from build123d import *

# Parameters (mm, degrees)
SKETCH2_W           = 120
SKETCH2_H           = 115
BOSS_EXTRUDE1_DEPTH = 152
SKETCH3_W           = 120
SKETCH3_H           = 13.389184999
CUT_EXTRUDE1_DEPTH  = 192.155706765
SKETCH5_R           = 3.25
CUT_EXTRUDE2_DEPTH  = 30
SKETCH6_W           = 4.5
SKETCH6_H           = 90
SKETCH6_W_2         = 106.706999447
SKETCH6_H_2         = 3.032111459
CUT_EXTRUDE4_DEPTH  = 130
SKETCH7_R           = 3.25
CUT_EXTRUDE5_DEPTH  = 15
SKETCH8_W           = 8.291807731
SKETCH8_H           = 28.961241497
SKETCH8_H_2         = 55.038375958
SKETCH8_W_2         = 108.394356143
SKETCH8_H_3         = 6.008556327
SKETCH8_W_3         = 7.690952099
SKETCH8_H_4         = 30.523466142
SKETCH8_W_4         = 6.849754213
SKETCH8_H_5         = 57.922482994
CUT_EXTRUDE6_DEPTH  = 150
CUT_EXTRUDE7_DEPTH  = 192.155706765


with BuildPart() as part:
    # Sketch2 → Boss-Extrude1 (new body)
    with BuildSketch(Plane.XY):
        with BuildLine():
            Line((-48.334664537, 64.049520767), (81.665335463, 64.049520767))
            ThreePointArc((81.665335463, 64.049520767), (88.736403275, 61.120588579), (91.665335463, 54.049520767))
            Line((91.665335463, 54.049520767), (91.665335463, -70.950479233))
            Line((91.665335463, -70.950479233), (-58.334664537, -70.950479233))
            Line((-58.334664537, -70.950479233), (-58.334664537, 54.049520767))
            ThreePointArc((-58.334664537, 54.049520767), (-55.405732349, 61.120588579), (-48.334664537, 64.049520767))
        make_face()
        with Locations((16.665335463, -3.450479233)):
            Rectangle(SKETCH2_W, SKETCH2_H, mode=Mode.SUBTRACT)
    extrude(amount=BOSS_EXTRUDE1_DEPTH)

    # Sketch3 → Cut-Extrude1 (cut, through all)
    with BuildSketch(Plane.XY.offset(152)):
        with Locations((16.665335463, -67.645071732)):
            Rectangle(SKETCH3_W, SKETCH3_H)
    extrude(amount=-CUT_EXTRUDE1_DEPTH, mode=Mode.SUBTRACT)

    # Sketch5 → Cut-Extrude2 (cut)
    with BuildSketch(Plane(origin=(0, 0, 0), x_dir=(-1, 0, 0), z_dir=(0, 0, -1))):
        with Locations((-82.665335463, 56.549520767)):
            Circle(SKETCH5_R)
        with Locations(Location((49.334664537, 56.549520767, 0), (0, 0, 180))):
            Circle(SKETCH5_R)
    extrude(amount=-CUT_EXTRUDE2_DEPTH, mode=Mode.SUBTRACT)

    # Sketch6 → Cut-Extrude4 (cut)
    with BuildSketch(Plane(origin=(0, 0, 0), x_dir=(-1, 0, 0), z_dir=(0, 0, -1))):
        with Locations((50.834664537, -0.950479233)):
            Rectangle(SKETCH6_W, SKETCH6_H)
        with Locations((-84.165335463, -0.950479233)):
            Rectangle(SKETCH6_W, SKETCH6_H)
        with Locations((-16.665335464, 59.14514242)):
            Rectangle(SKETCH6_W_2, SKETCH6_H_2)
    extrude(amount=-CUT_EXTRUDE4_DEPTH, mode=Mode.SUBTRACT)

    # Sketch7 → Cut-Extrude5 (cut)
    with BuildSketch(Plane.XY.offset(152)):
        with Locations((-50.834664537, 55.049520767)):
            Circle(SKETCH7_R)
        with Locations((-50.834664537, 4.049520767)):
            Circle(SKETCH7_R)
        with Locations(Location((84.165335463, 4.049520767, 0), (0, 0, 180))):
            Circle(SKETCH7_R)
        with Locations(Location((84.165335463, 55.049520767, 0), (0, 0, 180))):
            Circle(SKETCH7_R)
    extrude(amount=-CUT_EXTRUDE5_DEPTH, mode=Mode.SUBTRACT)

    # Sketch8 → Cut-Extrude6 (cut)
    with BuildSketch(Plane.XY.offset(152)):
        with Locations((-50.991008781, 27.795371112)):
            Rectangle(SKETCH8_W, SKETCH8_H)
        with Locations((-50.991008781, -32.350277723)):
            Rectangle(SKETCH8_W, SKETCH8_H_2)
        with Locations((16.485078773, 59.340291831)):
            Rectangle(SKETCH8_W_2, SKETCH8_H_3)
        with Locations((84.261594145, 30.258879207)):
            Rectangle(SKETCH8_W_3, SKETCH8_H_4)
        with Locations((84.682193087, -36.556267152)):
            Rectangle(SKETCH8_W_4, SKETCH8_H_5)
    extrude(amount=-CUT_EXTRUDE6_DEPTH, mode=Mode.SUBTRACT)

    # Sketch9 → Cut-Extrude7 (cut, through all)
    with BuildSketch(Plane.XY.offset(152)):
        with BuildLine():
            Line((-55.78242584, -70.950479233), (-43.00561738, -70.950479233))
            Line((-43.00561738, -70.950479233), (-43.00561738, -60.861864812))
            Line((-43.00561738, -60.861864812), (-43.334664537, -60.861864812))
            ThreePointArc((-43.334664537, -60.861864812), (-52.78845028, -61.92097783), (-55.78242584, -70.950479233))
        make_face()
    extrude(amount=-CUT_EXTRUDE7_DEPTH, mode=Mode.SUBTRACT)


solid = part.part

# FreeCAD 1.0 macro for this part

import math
import FreeCAD as App
import Part
import Sketcher
from FreeCAD import Vector

doc = App.newDocument("Part")
params = doc.addObject("Spreadsheet::Sheet", "Params")
for row, (alias, value) in enumerate([
    ("sketch1_radius", "10 mm"),
    ("sketch1_width", "130 mm"),
    ("sketch1_width2", "120 mm"),
    ("sketch1_height", "125 mm"),
    ("sketch1_height2", "115 mm"),
    ("pad1_length", "152 mm"),
    ("sketch2_width", "120 mm"),
    ("sketch3_diameter", "6.5 mm"),
    ("pocket2_length", "30 mm"),
    ("sketch4_height", "90 mm"),
    ("sketch4_width", "4.5 mm"),
    ("pocket3_length", "130 mm"),
    ("sketch5_diameter", "6.5 mm"),
    ("pocket4_length", "15 mm"),
    ("pocket5_length", "150 mm"),
], start=1):
    params.set(f"A{row}", alias)
    params.set(f"B{row}", "=" + value)
    params.setAlias(f"B{row}", alias)

body = doc.addObject("PartDesign::Body", "Body")

# Sketch on XY plane
sketch1 = body.newObject("Sketcher::SketchObject", "Sketch")
sketch1.AttachmentSupport = (doc.getObject("XY_Plane"), [""])
sketch1.MapMode = "FlatFace"
sketch1.addGeometry(Part.LineSegment(Vector(82, 64, 0), Vector(-48, 64, 0)), False)
sketch1.addGeometry(Part.ArcOfCircle(Part.Circle(Vector(-48, 54, 0), Vector(0, 0, 1), 10), math.radians(90), math.radians(180)), False)
sketch1.addGeometry(Part.LineSegment(Vector(-58, 54, 0), Vector(-58, -71, 0)), False)
sketch1.addGeometry(Part.LineSegment(Vector(-58, -71, 0), Vector(92, -71, 0)), False)
sketch1.addGeometry(Part.LineSegment(Vector(92, -71, 0), Vector(92, 54, 0)), False)
sketch1.addGeometry(Part.ArcOfCircle(Part.Circle(Vector(82, 54, 0), Vector(0, 0, 1), 10), math.radians(0), math.radians(90)), False)
sketch1.addGeometry(Part.LineSegment(Vector(-43, -61, 0), Vector(-43, 54, 0)), False)
sketch1.addGeometry(Part.LineSegment(Vector(-43, 54, 0), Vector(77, 54, 0)), False)
sketch1.addGeometry(Part.LineSegment(Vector(77, 54, 0), Vector(77, -61, 0)), False)
sketch1.addGeometry(Part.LineSegment(Vector(77, -61, 0), Vector(-43, -61, 0)), False)
sketch1.addConstraint(Sketcher.Constraint("Tangent", 0, 2, 1, 1))
sketch1.addConstraint(Sketcher.Constraint("Tangent", 1, 2, 2, 1))
sketch1.addConstraint(Sketcher.Constraint("Coincident", 2, 2, 3, 1))
sketch1.addConstraint(Sketcher.Constraint("Coincident", 3, 2, 4, 1))
sketch1.addConstraint(Sketcher.Constraint("Tangent", 4, 2, 5, 1))
sketch1.addConstraint(Sketcher.Constraint("Tangent", 5, 2, 0, 1))
sketch1.addConstraint(Sketcher.Constraint("Coincident", 6, 2, 7, 1))
sketch1.addConstraint(Sketcher.Constraint("Coincident", 7, 2, 8, 1))
sketch1.addConstraint(Sketcher.Constraint("Coincident", 8, 2, 9, 1))
sketch1.addConstraint(Sketcher.Constraint("Coincident", 9, 2, 6, 1))
sketch1.addConstraint(Sketcher.Constraint("Horizontal", 0))
sketch1.addConstraint(Sketcher.Constraint("Vertical", 2))
sketch1.addConstraint(Sketcher.Constraint("Horizontal", 3))
sketch1.addConstraint(Sketcher.Constraint("Vertical", 4))
sketch1.addConstraint(Sketcher.Constraint("Vertical", 6))
sketch1.addConstraint(Sketcher.Constraint("Horizontal", 7))
sketch1.addConstraint(Sketcher.Constraint("Vertical", 8))
sketch1.addConstraint(Sketcher.Constraint("Horizontal", 9))
sketch1.addConstraint(Sketcher.Constraint("Equal", 1, 5))
sketch1.addConstraint(Sketcher.Constraint("Horizontal", 4, 2, 6, 2))
sketch1.addConstraint(Sketcher.Constraint("Radius", 1, 10.0))
sketch1.addConstraint(Sketcher.Constraint("DistanceX", 0, 2, 0, 1, 130.0))
sketch1.addConstraint(Sketcher.Constraint("DistanceX", 7, 1, 7, 2, 120.0))
sketch1.addConstraint(Sketcher.Constraint("DistanceY", 2, 2, 2, 1, 125.0))
sketch1.addConstraint(Sketcher.Constraint("DistanceY", 6, 1, 6, 2, 115.0))
sketch1.addConstraint(Sketcher.Constraint("DistanceX", 1, 3, 6, 2, 5.0))
sketch1.addConstraint(Sketcher.Constraint("DistanceY", -1, 1, 1, 3, 54.049521))
sketch1.addConstraint(Sketcher.Constraint("DistanceX", 1, 3, -1, 1, 48.334665))
sketch1.setExpression("Constraints[20]", "Params.sketch1_radius")
sketch1.setExpression("Constraints[21]", "Params.sketch1_width")
sketch1.setExpression("Constraints[22]", "Params.sketch1_width2")
sketch1.setExpression("Constraints[23]", "Params.sketch1_height")
sketch1.setExpression("Constraints[24]", "Params.sketch1_height2")
pad1 = body.newObject("PartDesign::Pad", "Pad")
pad1.Profile = sketch1
pad1.setExpression("Length", "Params.pad1_length")

# Sketch on XY plane
sketch2 = body.newObject("Sketcher::SketchObject", "Sketch001")
sketch2.AttachmentSupport = (doc.getObject("XY_Plane"), [""])
sketch2.MapMode = "FlatFace"
sketch2.AttachmentOffset = App.Placement(Vector(0, 0, 152), App.Rotation())
sketch2.addGeometry(Part.LineSegment(Vector(-43, -61, 0), Vector(-43, -74, 0)), False)
sketch2.addGeometry(Part.LineSegment(Vector(-43, -74, 0), Vector(77, -74, 0)), False)
sketch2.addGeometry(Part.LineSegment(Vector(77, -74, 0), Vector(77, -61, 0)), False)
sketch2.addGeometry(Part.LineSegment(Vector(77, -61, 0), Vector(-43, -61, 0)), False)
sketch2.addConstraint(Sketcher.Constraint("Coincident", 0, 2, 1, 1))
sketch2.addConstraint(Sketcher.Constraint("Coincident", 1, 2, 2, 1))
sketch2.addConstraint(Sketcher.Constraint("Coincident", 2, 2, 3, 1))
sketch2.addConstraint(Sketcher.Constraint("Coincident", 3, 2, 0, 1))
sketch2.addConstraint(Sketcher.Constraint("Vertical", 0))
sketch2.addConstraint(Sketcher.Constraint("Horizontal", 1))
sketch2.addConstraint(Sketcher.Constraint("Vertical", 2))
sketch2.addConstraint(Sketcher.Constraint("Horizontal", 3))
sketch2.addConstraint(Sketcher.Constraint("DistanceX", 1, 1, 1, 2, 120.0))
sketch2.addConstraint(Sketcher.Constraint("DistanceY", 0, 2, 0, 1, 13.389185))
sketch2.addConstraint(Sketcher.Constraint("DistanceY", 2, 2, -1, 1, 60.950479))
sketch2.addConstraint(Sketcher.Constraint("DistanceX", 0, 2, -1, 1, 43.334665))
sketch2.setExpression("Constraints[8]", "Params.sketch2_width")
pocket1 = body.newObject("PartDesign::Pocket", "Pocket")
pocket1.Profile = sketch2
pocket1.Type = "ThroughAll"

# Sketch on XY plane
sketch3 = body.newObject("Sketcher::SketchObject", "Sketch002")
sketch3.AttachmentSupport = (doc.getObject("XY_Plane"), [""])
sketch3.MapMode = "FlatFace"
sketch3.addGeometry(Part.Circle(Vector(82.7, 56.5, 0), Vector(0, 0, 1), 3.2), False)
sketch3.addGeometry(Part.Circle(Vector(-49.3, 56.5, 0), Vector(0, 0, 1), 3.2), False)
sketch3.addConstraint(Sketcher.Constraint("Equal", 0, 1))
sketch3.addConstraint(Sketcher.Constraint("Horizontal", 0, 3, 1, 3))
sketch3.addConstraint(Sketcher.Constraint("Diameter", 0, 6.5))
sketch3.addConstraint(Sketcher.Constraint("DistanceX", 1, 3, 0, 3, 132.0))
sketch3.addConstraint(Sketcher.Constraint("DistanceY", -1, 1, 0, 3, 56.549521))
sketch3.addConstraint(Sketcher.Constraint("DistanceX", -1, 1, 0, 3, 82.665335))
sketch3.setExpression("Constraints[2]", "Params.sketch3_diameter")
pocket2 = body.newObject("PartDesign::Pocket", "Pocket001")
pocket2.Profile = sketch3
pocket2.setExpression("Length", "Params.pocket2_length")
pocket2.Reversed = True

# Sketch on XY plane
sketch4 = body.newObject("Sketcher::SketchObject", "Sketch003")
sketch4.AttachmentSupport = (doc.getObject("XY_Plane"), [""])
sketch4.MapMode = "FlatFace"
sketch4.addGeometry(Part.LineSegment(Vector(-48.6, 44, 0), Vector(-48.6, -46, 0)), False)
sketch4.addGeometry(Part.LineSegment(Vector(-48.6, -46, 0), Vector(-53.1, -46, 0)), False)
sketch4.addGeometry(Part.LineSegment(Vector(-53.1, -46, 0), Vector(-53.1, 44, 0)), False)
sketch4.addGeometry(Part.LineSegment(Vector(-53.1, 44, 0), Vector(-48.6, 44, 0)), False)
sketch4.addGeometry(Part.LineSegment(Vector(86.4, 44, 0), Vector(86.4, -46, 0)), False)
sketch4.addGeometry(Part.LineSegment(Vector(86.4, -46, 0), Vector(81.9, -46, 0)), False)
sketch4.addGeometry(Part.LineSegment(Vector(81.9, -46, 0), Vector(81.9, 44, 0)), False)
sketch4.addGeometry(Part.LineSegment(Vector(81.9, 44, 0), Vector(86.4, 44, 0)), False)
sketch4.addGeometry(Part.LineSegment(Vector(70, 60.7, 0), Vector(70, 57.6, 0)), False)
sketch4.addGeometry(Part.LineSegment(Vector(70, 57.6, 0), Vector(-36.7, 57.6, 0)), False)
sketch4.addGeometry(Part.LineSegment(Vector(-36.7, 57.6, 0), Vector(-36.7, 60.7, 0)), False)
sketch4.addGeometry(Part.LineSegment(Vector(-36.7, 60.7, 0), Vector(70, 60.7, 0)), False)
sketch4.addConstraint(Sketcher.Constraint("Coincident", 0, 2, 1, 1))
sketch4.addConstraint(Sketcher.Constraint("Coincident", 1, 2, 2, 1))
sketch4.addConstraint(Sketcher.Constraint("Coincident", 2, 2, 3, 1))
sketch4.addConstraint(Sketcher.Constraint("Coincident", 3, 2, 0, 1))
sketch4.addConstraint(Sketcher.Constraint("Coincident", 4, 2, 5, 1))
sketch4.addConstraint(Sketcher.Constraint("Coincident", 5, 2, 6, 1))
sketch4.addConstraint(Sketcher.Constraint("Coincident", 6, 2, 7, 1))
sketch4.addConstraint(Sketcher.Constraint("Coincident", 7, 2, 4, 1))
sketch4.addConstraint(Sketcher.Constraint("Coincident", 8, 2, 9, 1))
sketch4.addConstraint(Sketcher.Constraint("Coincident", 9, 2, 10, 1))
sketch4.addConstraint(Sketcher.Constraint("Coincident", 10, 2, 11, 1))
sketch4.addConstraint(Sketcher.Constraint("Coincident", 11, 2, 8, 1))
sketch4.addConstraint(Sketcher.Constraint("Vertical", 0))
sketch4.addConstraint(Sketcher.Constraint("Horizontal", 1))
sketch4.addConstraint(Sketcher.Constraint("Vertical", 2))
sketch4.addConstraint(Sketcher.Constraint("Horizontal", 3))
sketch4.addConstraint(Sketcher.Constraint("Vertical", 4))
sketch4.addConstraint(Sketcher.Constraint("Horizontal", 5))
sketch4.addConstraint(Sketcher.Constraint("Vertical", 6))
sketch4.addConstraint(Sketcher.Constraint("Horizontal", 7))
sketch4.addConstraint(Sketcher.Constraint("Vertical", 8))
sketch4.addConstraint(Sketcher.Constraint("Horizontal", 9))
sketch4.addConstraint(Sketcher.Constraint("Vertical", 10))
sketch4.addConstraint(Sketcher.Constraint("Horizontal", 11))
sketch4.addConstraint(Sketcher.Constraint("Horizontal", 1, 2, 4, 2))
sketch4.addConstraint(Sketcher.Constraint("Horizontal", 3, 2, 6, 2))
sketch4.addConstraint(Sketcher.Constraint("Equal", 3, 5))
sketch4.addConstraint(Sketcher.Constraint("DistanceY", 0, 2, 0, 1, 90.0))
sketch4.addConstraint(Sketcher.Constraint("DistanceX", 1, 2, 1, 1, 4.5))
sketch4.addConstraint(Sketcher.Constraint("DistanceX", 0, 2, 4, 2, 135.0))
sketch4.addConstraint(Sketcher.Constraint("DistanceX", 9, 2, 9, 1, 106.706999))
sketch4.addConstraint(Sketcher.Constraint("DistanceY", 8, 2, 8, 1, 3.032111))
sketch4.addConstraint(Sketcher.Constraint("DistanceY", -1, 1, 10, 2, 60.661198))
sketch4.addConstraint(Sketcher.Constraint("DistanceX", 8, 2, 6, 2, 11.8965))
sketch4.addConstraint(Sketcher.Constraint("DistanceY", 0, 2, -1, 1, 45.950479))
sketch4.addConstraint(Sketcher.Constraint("DistanceX", 0, 2, -1, 1, 48.584665))
sketch4.setExpression("Constraints[27]", "Params.sketch4_height")
sketch4.setExpression("Constraints[28]", "Params.sketch4_width")
pocket3 = body.newObject("PartDesign::Pocket", "Pocket002")
pocket3.Profile = sketch4
pocket3.setExpression("Length", "Params.pocket3_length")
pocket3.Reversed = True

# Sketch on XY plane
sketch5 = body.newObject("Sketcher::SketchObject", "Sketch004")
sketch5.AttachmentSupport = (doc.getObject("XY_Plane"), [""])
sketch5.MapMode = "FlatFace"
sketch5.AttachmentOffset = App.Placement(Vector(0, 0, 152), App.Rotation())
sketch5.addGeometry(Part.Circle(Vector(-50.8, 55, 0), Vector(0, 0, 1), 3.2), False)
sketch5.addGeometry(Part.Circle(Vector(-50.8, 4, 0), Vector(0, 0, 1), 3.2), False)
sketch5.addGeometry(Part.Circle(Vector(84.2, 4, 0), Vector(0, 0, 1), 3.2), False)
sketch5.addGeometry(Part.Circle(Vector(84.2, 55, 0), Vector(0, 0, 1), 3.2), False)
sketch5.addConstraint(Sketcher.Constraint("Equal", 0, 1))
sketch5.addConstraint(Sketcher.Constraint("Equal", 1, 2))
sketch5.addConstraint(Sketcher.Constraint("Equal", 2, 3))
sketch5.addConstraint(Sketcher.Constraint("Horizontal", 1, 3, 2, 3))
sketch5.addConstraint(Sketcher.Constraint("Horizontal", 0, 3, 3, 3))
sketch5.addConstraint(Sketcher.Constraint("Vertical", 0, 3, 1, 3))
sketch5.addConstraint(Sketcher.Constraint("Vertical", 2, 3, 3, 3))
sketch5.addConstraint(Sketcher.Constraint("Diameter", 0, 6.5))
sketch5.addConstraint(Sketcher.Constraint("DistanceY", 1, 3, 0, 3, 51.0))
sketch5.addConstraint(Sketcher.Constraint("DistanceX", 1, 3, 2, 3, 135.0))
sketch5.addConstraint(Sketcher.Constraint("DistanceY", -1, 1, 0, 3, 55.049521))
sketch5.addConstraint(Sketcher.Constraint("DistanceX", 0, 3, -1, 1, 50.834665))
sketch5.setExpression("Constraints[7]", "Params.sketch5_diameter")
pocket4 = body.newObject("PartDesign::Pocket", "Pocket003")
pocket4.Profile = sketch5
pocket4.setExpression("Length", "Params.pocket4_length")

# Sketch on XY plane
sketch6 = body.newObject("Sketcher::SketchObject", "Sketch005")
sketch6.AttachmentSupport = (doc.getObject("XY_Plane"), [""])
sketch6.MapMode = "FlatFace"
sketch6.AttachmentOffset = App.Placement(Vector(0, 0, 152), App.Rotation())
sketch6.addGeometry(Part.LineSegment(Vector(-55, 42, 0), Vector(-55, 13, 0)), False)
sketch6.addGeometry(Part.LineSegment(Vector(-55, 13, 0), Vector(-47, 13, 0)), False)
sketch6.addGeometry(Part.LineSegment(Vector(-47, 13, 0), Vector(-47, 42, 0)), False)
sketch6.addGeometry(Part.LineSegment(Vector(-47, 42, 0), Vector(-55, 42, 0)), False)
sketch6.addGeometry(Part.LineSegment(Vector(-55, -5, 0), Vector(-55, -60, 0)), False)
sketch6.addGeometry(Part.LineSegment(Vector(-55, -60, 0), Vector(-47, -60, 0)), False)
sketch6.addGeometry(Part.LineSegment(Vector(-47, -60, 0), Vector(-47, -5, 0)), False)
sketch6.addGeometry(Part.LineSegment(Vector(-47, -5, 0), Vector(-55, -5, 0)), False)
sketch6.addGeometry(Part.LineSegment(Vector(-38, 62, 0), Vector(-38, 56, 0)), False)
sketch6.addGeometry(Part.LineSegment(Vector(-38, 56, 0), Vector(71, 56, 0)), False)
sketch6.addGeometry(Part.LineSegment(Vector(71, 56, 0), Vector(71, 62, 0)), False)
sketch6.addGeometry(Part.LineSegment(Vector(71, 62, 0), Vector(-38, 62, 0)), False)
sketch6.addGeometry(Part.LineSegment(Vector(80, 46, 0), Vector(80, 15, 0)), False)
sketch6.addGeometry(Part.LineSegment(Vector(80, 15, 0), Vector(88, 15, 0)), False)
sketch6.addGeometry(Part.LineSegment(Vector(88, 15, 0), Vector(88, 46, 0)), False)
sketch6.addGeometry(Part.LineSegment(Vector(88, 46, 0), Vector(80, 46, 0)), False)
sketch6.addGeometry(Part.LineSegment(Vector(81, -8, 0), Vector(81, -66, 0)), False)
sketch6.addGeometry(Part.LineSegment(Vector(81, -66, 0), Vector(88, -66, 0)), False)
sketch6.addGeometry(Part.LineSegment(Vector(88, -66, 0), Vector(88, -8, 0)), False)
sketch6.addGeometry(Part.LineSegment(Vector(88, -8, 0), Vector(81, -8, 0)), False)
sketch6.addConstraint(Sketcher.Constraint("Coincident", 0, 2, 1, 1))
sketch6.addConstraint(Sketcher.Constraint("Coincident", 1, 2, 2, 1))
sketch6.addConstraint(Sketcher.Constraint("Coincident", 2, 2, 3, 1))
sketch6.addConstraint(Sketcher.Constraint("Coincident", 3, 2, 0, 1))
sketch6.addConstraint(Sketcher.Constraint("Coincident", 4, 2, 5, 1))
sketch6.addConstraint(Sketcher.Constraint("Coincident", 5, 2, 6, 1))
sketch6.addConstraint(Sketcher.Constraint("Coincident", 6, 2, 7, 1))
sketch6.addConstraint(Sketcher.Constraint("Coincident", 7, 2, 4, 1))
sketch6.addConstraint(Sketcher.Constraint("Coincident", 8, 2, 9, 1))
sketch6.addConstraint(Sketcher.Constraint("Coincident", 9, 2, 10, 1))
sketch6.addConstraint(Sketcher.Constraint("Coincident", 10, 2, 11, 1))
sketch6.addConstraint(Sketcher.Constraint("Coincident", 11, 2, 8, 1))
sketch6.addConstraint(Sketcher.Constraint("Coincident", 12, 2, 13, 1))
sketch6.addConstraint(Sketcher.Constraint("Coincident", 13, 2, 14, 1))
sketch6.addConstraint(Sketcher.Constraint("Coincident", 14, 2, 15, 1))
sketch6.addConstraint(Sketcher.Constraint("Coincident", 15, 2, 12, 1))
sketch6.addConstraint(Sketcher.Constraint("Coincident", 16, 2, 17, 1))
sketch6.addConstraint(Sketcher.Constraint("Coincident", 17, 2, 18, 1))
sketch6.addConstraint(Sketcher.Constraint("Coincident", 18, 2, 19, 1))
sketch6.addConstraint(Sketcher.Constraint("Coincident", 19, 2, 16, 1))
sketch6.addConstraint(Sketcher.Constraint("Vertical", 0))
sketch6.addConstraint(Sketcher.Constraint("Horizontal", 1))
sketch6.addConstraint(Sketcher.Constraint("Vertical", 2))
sketch6.addConstraint(Sketcher.Constraint("Horizontal", 3))
sketch6.addConstraint(Sketcher.Constraint("Vertical", 4))
sketch6.addConstraint(Sketcher.Constraint("Horizontal", 5))
sketch6.addConstraint(Sketcher.Constraint("Vertical", 6))
sketch6.addConstraint(Sketcher.Constraint("Horizontal", 7))
sketch6.addConstraint(Sketcher.Constraint("Vertical", 8))
sketch6.addConstraint(Sketcher.Constraint("Horizontal", 9))
sketch6.addConstraint(Sketcher.Constraint("Vertical", 10))
sketch6.addConstraint(Sketcher.Constraint("Horizontal", 11))
sketch6.addConstraint(Sketcher.Constraint("Vertical", 12))
sketch6.addConstraint(Sketcher.Constraint("Horizontal", 13))
sketch6.addConstraint(Sketcher.Constraint("Vertical", 14))
sketch6.addConstraint(Sketcher.Constraint("Horizontal", 15))
sketch6.addConstraint(Sketcher.Constraint("Vertical", 16))
sketch6.addConstraint(Sketcher.Constraint("Horizontal", 17))
sketch6.addConstraint(Sketcher.Constraint("Vertical", 18))
sketch6.addConstraint(Sketcher.Constraint("Horizontal", 19))
sketch6.addConstraint(Sketcher.Constraint("Vertical", 3, 2, 4, 2))
sketch6.addConstraint(Sketcher.Constraint("Vertical", 2, 2, 5, 2))
sketch6.addConstraint(Sketcher.Constraint("Vertical", 14, 2, 17, 2))
sketch6.addConstraint(Sketcher.Constraint("DistanceY", 0, 2, 0, 1, 28.961241))
sketch6.addConstraint(Sketcher.Constraint("DistanceX", 8, 2, -1, 1, 37.712099))
sketch6.addConstraint(Sketcher.Constraint("DistanceY", 14, 2, 9, 2, 10.815401))
sketch6.addConstraint(Sketcher.Constraint("DistanceX", 1, 1, 1, 2, 8.291808))
sketch6.addConstraint(Sketcher.Constraint("DistanceX", 9, 1, 9, 2, 108.394356))
sketch6.addConstraint(Sketcher.Constraint("DistanceX", 13, 1, 13, 2, 7.690952))
sketch6.addConstraint(Sketcher.Constraint("DistanceX", 17, 1, 17, 2, 6.849754))
sketch6.addConstraint(Sketcher.Constraint("DistanceY", 4, 2, 4, 1, 55.038376))
sketch6.addConstraint(Sketcher.Constraint("DistanceY", 8, 2, 8, 1, 6.008556))
sketch6.addConstraint(Sketcher.Constraint("DistanceY", 12, 2, 12, 1, 30.523466))
sketch6.addConstraint(Sketcher.Constraint("DistanceY", 16, 2, 16, 1, 57.922483))
sketch6.addConstraint(Sketcher.Constraint("DistanceY", -1, 1, 0, 2, 13.31475))
sketch6.addConstraint(Sketcher.Constraint("DistanceY", 6, 2, -1, 1, 4.83109))
sketch6.addConstraint(Sketcher.Constraint("DistanceY", -1, 1, 10, 2, 62.34457))
sketch6.addConstraint(Sketcher.Constraint("DistanceX", -1, 1, 12, 2, 80.416118))
sketch6.addConstraint(Sketcher.Constraint("DistanceY", 16, 2, -1, 1, 65.517509))
sketch6.addConstraint(Sketcher.Constraint("DistanceX", 2, 2, 9, 2, 117.527362))
pocket5 = body.newObject("PartDesign::Pocket", "Pocket004")
pocket5.Profile = sketch6
pocket5.setExpression("Length", "Params.pocket5_length")

# Sketch on XY plane
sketch7 = body.newObject("Sketcher::SketchObject", "Sketch006")
sketch7.AttachmentSupport = (doc.getObject("XY_Plane"), [""])
sketch7.MapMode = "FlatFace"
sketch7.AttachmentOffset = App.Placement(Vector(0, 0, 152), App.Rotation())
sketch7.addGeometry(Part.LineSegment(Vector(-55.78, -70.95, 0), Vector(-43.01, -70.95, 0)), False)
sketch7.addGeometry(Part.LineSegment(Vector(-43.01, -70.95, 0), Vector(-43.01, -60.86, 0)), False)
sketch7.addGeometry(Part.LineSegment(Vector(-43.01, -60.86, 0), Vector(-43.33, -60.86, 0)), False)
sketch7.addGeometry(Part.ArcOfCircle(Part.Circle(Vector(-47.23, -68.77, 0), Vector(0, 0, 1), 8.82), math.radians(64), math.radians(194)), False)
sketch7.addConstraint(Sketcher.Constraint("Coincident", 0, 2, 1, 1))
sketch7.addConstraint(Sketcher.Constraint("Coincident", 1, 2, 2, 1))
sketch7.addConstraint(Sketcher.Constraint("Coincident", 2, 2, 3, 1))
sketch7.addConstraint(Sketcher.Constraint("Coincident", 3, 2, 0, 1))
sketch7.addConstraint(Sketcher.Constraint("Horizontal", 0))
sketch7.addConstraint(Sketcher.Constraint("Vertical", 1))
sketch7.addConstraint(Sketcher.Constraint("Horizontal", 2))
sketch7.addConstraint(Sketcher.Constraint("Radius", 3, 8.820728))
sketch7.addConstraint(Sketcher.Constraint("DistanceX", 0, 1, 0, 2, 12.776808))
sketch7.addConstraint(Sketcher.Constraint("DistanceX", 2, 2, 2, 1, 0.329047))
sketch7.addConstraint(Sketcher.Constraint("DistanceY", 1, 1, 1, 2, 10.088614))
sketch7.addConstraint(Sketcher.Constraint("DistanceY", 3, 3, -1, 1, 68.773651))
sketch7.addConstraint(Sketcher.Constraint("DistanceX", 3, 3, -1, 1, 47.234522))
pocket6 = body.newObject("PartDesign::Pocket", "Pocket005")
pocket6.Profile = sketch7
pocket6.Type = "ThroughAll"

doc.recompute()
